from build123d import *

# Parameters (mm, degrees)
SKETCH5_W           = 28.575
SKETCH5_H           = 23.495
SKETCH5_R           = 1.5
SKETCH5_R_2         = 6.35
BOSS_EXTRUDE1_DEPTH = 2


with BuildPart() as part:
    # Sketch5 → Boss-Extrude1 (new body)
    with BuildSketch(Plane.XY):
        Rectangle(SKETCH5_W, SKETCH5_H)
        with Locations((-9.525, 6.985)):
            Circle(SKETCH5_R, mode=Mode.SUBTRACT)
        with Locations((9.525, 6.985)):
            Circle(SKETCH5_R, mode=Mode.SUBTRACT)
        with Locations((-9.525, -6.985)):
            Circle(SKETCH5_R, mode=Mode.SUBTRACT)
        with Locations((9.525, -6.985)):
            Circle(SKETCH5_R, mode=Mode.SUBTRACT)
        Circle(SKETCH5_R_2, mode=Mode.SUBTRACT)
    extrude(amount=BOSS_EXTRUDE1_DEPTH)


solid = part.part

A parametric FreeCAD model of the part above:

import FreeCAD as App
import Part
import Sketcher
from FreeCAD import Vector
Q = App.Units.Quantity

doc = App.newDocument("Part")
body = doc.addObject("PartDesign::Body", "Body")

# Sketch on XY plane
sketch1 = body.newObject("Sketcher::SketchObject", "Sketch")
sketch1.AttachmentSupport = (doc.getObject("XY_Plane"), [""])
sketch1.MapMode = "FlatFace"
sketch1.addGeometry([
    Part.LineSegment(Vector(-14.2875, 11.7475, 0), Vector(-14.2875, -11.7475, 0)),  # 0
    Part.LineSegment(Vector(-14.2875, -11.7475, 0), Vector(14.2875, -11.7475, 0)),  # 1
    Part.LineSegment(Vector(14.2875, -11.7475, 0), Vector(14.2875, 11.7475, 0)),  # 2
    Part.LineSegment(Vector(14.2875, 11.7475, 0), Vector(-14.2875, 11.7475, 0)),  # 3
    Part.Circle(Vector(-9.525, -6.985, 0), Vector(0, 0, 1), 1.5),  # 4
    Part.Circle(Vector(9.525, -6.985, 0), Vector(0, 0, 1), 1.5),  # 5
    Part.Circle(Vector(-9.525, 6.985, 0), Vector(0, 0, 1), 1.5),  # 6
    Part.Circle(Vector(0, 0, 0), Vector(0, 0, 1), 6.35),  # 7
    Part.Circle(Vector(9.525, 6.985, 0), Vector(0, 0, 1), 1.5),  # 8
], False)
sketch1.addConstraint([
    Sketcher.Constraint("Coincident", 0, 2, 1, 1),
    Sketcher.Constraint("Coincident", 1, 2, 2, 1),
    Sketcher.Constraint("Coincident", 2, 2, 3, 1),
    Sketcher.Constraint("Coincident", 3, 2, 0, 1),
    Sketcher.Constraint("Vertical", 0),
    Sketcher.Constraint("Horizontal", 1),
    Sketcher.Constraint("Vertical", 2),
    Sketcher.Constraint("Horizontal", 3),
    Sketcher.Constraint("Coincident", 7, 3, -1, 1),
    Sketcher.Constraint("Equal", 4, 5),
    Sketcher.Constraint("Equal", 5, 6),
    Sketcher.Constraint("Equal", 6, 8),
    Sketcher.Constraint("Symmetric", 5, 3, 6, 3, -1, 1),
    Sketcher.Constraint("Symmetric", 4, 3, 8, 3, -1, 1),
    Sketcher.Constraint("Symmetric", 0, 2, 2, 2, -1, 1),
    Sketcher.Constraint("Symmetric", 4, 3, 5, 3, -2),
    Sketcher.Constraint("Diameter", 7, Q("0.5 in")),
    Sketcher.Constraint("Diameter", 4, Q("3 mm")),
    Sketcher.Constraint("DistanceX", 1, 1, 1, 2, Q("1.125 in")),
    Sketcher.Constraint("DistanceY", 0, 2, 0, 1, Q("0.925 in")),
    Sketcher.Constraint("DistanceX", 4, 3, 5, 3, Q("0.75 in")),
    Sketcher.Constraint("DistanceY", 4, 3, 6, 3, Q("0.55 in")),
])
pad1 = body.newObject("PartDesign::Pad", "Pad")
pad1.Profile = sketch1
pad1.Length = 2

doc.recompute()
